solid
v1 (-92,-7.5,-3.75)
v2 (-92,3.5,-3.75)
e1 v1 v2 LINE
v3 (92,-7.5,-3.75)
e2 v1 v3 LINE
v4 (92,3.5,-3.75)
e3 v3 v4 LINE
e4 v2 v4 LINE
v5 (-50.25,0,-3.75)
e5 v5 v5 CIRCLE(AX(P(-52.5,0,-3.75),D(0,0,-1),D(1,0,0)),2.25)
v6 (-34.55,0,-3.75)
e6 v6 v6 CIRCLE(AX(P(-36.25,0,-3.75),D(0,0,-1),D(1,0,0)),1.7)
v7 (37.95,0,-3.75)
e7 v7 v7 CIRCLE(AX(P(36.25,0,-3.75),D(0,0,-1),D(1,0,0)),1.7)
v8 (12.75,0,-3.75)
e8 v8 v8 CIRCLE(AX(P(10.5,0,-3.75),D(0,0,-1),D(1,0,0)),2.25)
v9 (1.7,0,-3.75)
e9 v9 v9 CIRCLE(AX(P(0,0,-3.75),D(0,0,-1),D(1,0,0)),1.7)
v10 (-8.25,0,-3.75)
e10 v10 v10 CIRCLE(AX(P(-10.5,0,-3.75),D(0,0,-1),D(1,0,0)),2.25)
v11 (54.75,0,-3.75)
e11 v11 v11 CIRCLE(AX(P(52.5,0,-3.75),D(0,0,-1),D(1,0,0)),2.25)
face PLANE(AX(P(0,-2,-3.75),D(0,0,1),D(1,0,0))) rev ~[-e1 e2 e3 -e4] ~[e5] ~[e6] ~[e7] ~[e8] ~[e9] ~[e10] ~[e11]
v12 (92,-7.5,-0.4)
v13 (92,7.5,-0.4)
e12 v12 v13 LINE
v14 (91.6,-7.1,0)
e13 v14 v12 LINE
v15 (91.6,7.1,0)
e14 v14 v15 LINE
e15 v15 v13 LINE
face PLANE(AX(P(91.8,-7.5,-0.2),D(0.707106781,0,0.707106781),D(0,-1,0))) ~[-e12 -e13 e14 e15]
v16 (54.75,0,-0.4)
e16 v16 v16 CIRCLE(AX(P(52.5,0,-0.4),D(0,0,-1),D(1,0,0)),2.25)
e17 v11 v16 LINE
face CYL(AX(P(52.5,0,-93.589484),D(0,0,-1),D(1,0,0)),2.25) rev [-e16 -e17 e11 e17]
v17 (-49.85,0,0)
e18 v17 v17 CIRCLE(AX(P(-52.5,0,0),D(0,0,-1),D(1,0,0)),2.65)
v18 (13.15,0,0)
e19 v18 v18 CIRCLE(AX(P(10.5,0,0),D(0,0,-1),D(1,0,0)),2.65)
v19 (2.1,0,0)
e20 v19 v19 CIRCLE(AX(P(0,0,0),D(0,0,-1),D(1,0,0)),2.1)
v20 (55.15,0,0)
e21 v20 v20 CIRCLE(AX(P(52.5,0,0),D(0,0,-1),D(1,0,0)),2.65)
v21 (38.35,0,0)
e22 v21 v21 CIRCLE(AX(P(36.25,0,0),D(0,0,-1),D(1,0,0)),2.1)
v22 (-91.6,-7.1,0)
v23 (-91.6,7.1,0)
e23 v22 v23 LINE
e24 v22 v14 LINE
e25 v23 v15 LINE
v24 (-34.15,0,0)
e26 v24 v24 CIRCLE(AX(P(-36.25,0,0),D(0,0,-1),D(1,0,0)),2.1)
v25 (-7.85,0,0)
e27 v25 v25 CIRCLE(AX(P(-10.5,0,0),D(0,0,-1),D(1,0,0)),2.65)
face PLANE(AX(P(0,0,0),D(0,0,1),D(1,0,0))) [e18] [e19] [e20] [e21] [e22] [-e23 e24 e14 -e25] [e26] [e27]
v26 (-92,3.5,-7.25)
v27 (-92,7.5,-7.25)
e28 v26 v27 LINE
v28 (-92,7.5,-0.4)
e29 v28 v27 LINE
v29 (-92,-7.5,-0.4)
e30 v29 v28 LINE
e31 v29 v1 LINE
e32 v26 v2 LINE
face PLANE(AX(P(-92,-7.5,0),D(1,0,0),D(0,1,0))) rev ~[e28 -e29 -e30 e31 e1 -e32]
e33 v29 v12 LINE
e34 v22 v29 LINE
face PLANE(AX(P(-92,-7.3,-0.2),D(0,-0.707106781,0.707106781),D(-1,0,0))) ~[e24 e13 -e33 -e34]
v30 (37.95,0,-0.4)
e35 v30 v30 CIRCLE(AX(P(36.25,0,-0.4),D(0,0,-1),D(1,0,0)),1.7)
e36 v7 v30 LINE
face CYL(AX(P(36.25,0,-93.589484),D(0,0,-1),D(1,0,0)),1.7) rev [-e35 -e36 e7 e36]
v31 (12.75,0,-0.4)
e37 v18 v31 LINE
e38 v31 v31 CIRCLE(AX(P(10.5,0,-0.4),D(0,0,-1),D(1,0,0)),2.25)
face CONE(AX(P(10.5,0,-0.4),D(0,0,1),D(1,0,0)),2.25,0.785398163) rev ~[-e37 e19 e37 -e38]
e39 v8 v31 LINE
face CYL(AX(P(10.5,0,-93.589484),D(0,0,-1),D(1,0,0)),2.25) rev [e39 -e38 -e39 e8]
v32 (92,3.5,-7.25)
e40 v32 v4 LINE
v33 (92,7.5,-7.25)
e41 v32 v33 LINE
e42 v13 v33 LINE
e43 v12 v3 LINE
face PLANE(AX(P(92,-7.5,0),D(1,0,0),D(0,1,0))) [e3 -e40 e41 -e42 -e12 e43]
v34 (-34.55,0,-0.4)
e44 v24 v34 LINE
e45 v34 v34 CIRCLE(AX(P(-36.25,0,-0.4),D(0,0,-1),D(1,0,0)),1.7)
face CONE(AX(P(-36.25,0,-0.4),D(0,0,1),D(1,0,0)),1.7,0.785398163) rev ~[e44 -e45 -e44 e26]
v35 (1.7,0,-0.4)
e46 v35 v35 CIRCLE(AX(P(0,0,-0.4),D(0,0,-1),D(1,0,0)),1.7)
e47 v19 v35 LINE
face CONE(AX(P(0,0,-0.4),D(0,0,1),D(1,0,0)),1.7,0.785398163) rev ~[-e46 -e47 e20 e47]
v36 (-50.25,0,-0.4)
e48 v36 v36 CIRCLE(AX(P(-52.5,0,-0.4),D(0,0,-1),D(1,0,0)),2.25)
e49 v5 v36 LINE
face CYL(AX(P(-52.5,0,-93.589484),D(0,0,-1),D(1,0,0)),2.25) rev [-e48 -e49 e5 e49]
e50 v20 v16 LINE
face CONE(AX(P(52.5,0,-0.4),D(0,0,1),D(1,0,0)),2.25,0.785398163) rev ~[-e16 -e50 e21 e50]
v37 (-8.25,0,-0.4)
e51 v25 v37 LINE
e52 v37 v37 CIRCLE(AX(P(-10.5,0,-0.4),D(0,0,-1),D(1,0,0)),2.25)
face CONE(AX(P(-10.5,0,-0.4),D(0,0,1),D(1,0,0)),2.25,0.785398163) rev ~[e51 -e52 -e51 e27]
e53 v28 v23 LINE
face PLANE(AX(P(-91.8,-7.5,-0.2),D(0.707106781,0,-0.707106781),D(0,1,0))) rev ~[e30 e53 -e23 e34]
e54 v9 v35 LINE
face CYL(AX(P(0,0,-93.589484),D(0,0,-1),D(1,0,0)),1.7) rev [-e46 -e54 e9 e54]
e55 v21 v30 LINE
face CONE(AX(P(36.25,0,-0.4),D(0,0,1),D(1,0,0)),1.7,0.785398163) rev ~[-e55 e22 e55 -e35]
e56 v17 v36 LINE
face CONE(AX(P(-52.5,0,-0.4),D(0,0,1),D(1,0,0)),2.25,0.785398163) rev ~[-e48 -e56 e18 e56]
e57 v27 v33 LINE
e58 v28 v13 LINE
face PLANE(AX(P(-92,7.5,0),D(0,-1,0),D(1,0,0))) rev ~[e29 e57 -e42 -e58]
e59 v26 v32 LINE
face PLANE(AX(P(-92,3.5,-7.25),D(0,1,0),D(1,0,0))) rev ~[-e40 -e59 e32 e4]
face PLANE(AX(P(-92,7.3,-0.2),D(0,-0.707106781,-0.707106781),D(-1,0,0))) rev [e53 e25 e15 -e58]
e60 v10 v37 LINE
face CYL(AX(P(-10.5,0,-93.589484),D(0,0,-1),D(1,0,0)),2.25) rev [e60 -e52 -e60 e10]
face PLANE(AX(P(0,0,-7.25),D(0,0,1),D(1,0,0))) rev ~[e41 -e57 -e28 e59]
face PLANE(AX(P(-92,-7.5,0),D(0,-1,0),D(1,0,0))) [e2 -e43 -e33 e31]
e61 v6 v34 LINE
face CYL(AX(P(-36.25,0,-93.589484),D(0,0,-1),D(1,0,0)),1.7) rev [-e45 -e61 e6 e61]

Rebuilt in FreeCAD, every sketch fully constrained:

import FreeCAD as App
import Part
import Sketcher
from FreeCAD import Vector


def edges_at(feature, points):
    """Names of the edges that pass closest to the given points."""
    edges = feature.Shape.Edges
    near = lambda p: min(range(len(edges)), key=lambda i: edges[i].distToShape(Part.Vertex(*p))[0])
    return sorted({f"Edge{near(p) + 1}" for p in points})

doc = App.newDocument("Part")
body = doc.addObject("PartDesign::Body", "Body")

# Sketch on XY plane
sketch1 = body.newObject("Sketcher::SketchObject", "Sketch")
sketch1.AttachmentSupport = (doc.getObject("XY_Plane"), [""])
sketch1.MapMode = "FlatFace"
sketch1.addGeometry(Part.LineSegment(Vector(-92, 7.5, 0), Vector(-92, -7.5, 0)), False)
sketch1.addGeometry(Part.LineSegment(Vector(-92, -7.5, 0), Vector(92, -7.5, 0)), False)
sketch1.addGeometry(Part.LineSegment(Vector(92, -7.5, 0), Vector(92, 7.5, 0)), False)
sketch1.addGeometry(Part.LineSegment(Vector(92, 7.5, 0), Vector(-92, 7.5, 0)), False)
sketch1.addConstraint(Sketcher.Constraint("Coincident", 0, 2, 1, 1))
sketch1.addConstraint(Sketcher.Constraint("Coincident", 1, 2, 2, 1))
sketch1.addConstraint(Sketcher.Constraint("Coincident", 2, 2, 3, 1))
sketch1.addConstraint(Sketcher.Constraint("Coincident", 3, 2, 0, 1))
sketch1.addConstraint(Sketcher.Constraint("Vertical", 0))
sketch1.addConstraint(Sketcher.Constraint("Horizontal", 1))
sketch1.addConstraint(Sketcher.Constraint("Vertical", 2))
sketch1.addConstraint(Sketcher.Constraint("Horizontal", 3))
sketch1.addConstraint(Sketcher.Constraint("Symmetric", 0, 2, 2, 2, -1, 1))
sketch1.addConstraint(Sketcher.Constraint("DistanceX", 1, 1, 1, 2, 184.0))
sketch1.addConstraint(Sketcher.Constraint("DistanceY", 0, 2, 0, 1, 15.0))
pad1 = body.newObject("PartDesign::Pad", "Pad")
pad1.Profile = sketch1
pad1.Length = 7.25
pad1.Reversed = True

# Sketch on XY plane
sketch2 = body.newObject("Sketcher::SketchObject", "Sketch001")
sketch2.AttachmentSupport = (doc.getObject("XY_Plane"), [""])
sketch2.MapMode = "FlatFace"
sketch2.AttachmentOffset = App.Placement(Vector(0, 0, -7.25), App.Rotation())
sketch2.addGeometry(Part.LineSegment(Vector(-92, 3.5, 0), Vector(-92, -7.5, 0)), False)
sketch2.addGeometry(Part.LineSegment(Vector(-92, -7.5, 0), Vector(92, -7.5, 0)), False)
sketch2.addGeometry(Part.LineSegment(Vector(92, -7.5, 0), Vector(92, 3.5, 0)), False)
sketch2.addGeometry(Part.LineSegment(Vector(92, 3.5, 0), Vector(-92, 3.5, 0)), False)
sketch2.addConstraint(Sketcher.Constraint("Coincident", 0, 2, 1, 1))
sketch2.addConstraint(Sketcher.Constraint("Coincident", 1, 2, 2, 1))
sketch2.addConstraint(Sketcher.Constraint("Coincident", 2, 2, 3, 1))
sketch2.addConstraint(Sketcher.Constraint("Coincident", 3, 2, 0, 1))
sketch2.addConstraint(Sketcher.Constraint("Vertical", 0))
sketch2.addConstraint(Sketcher.Constraint("Horizontal", 1))
sketch2.addConstraint(Sketcher.Constraint("Vertical", 2))
sketch2.addConstraint(Sketcher.Constraint("Horizontal", 3))
sketch2.addConstraint(Sketcher.Constraint("DistanceX", 1, 1, 1, 2, 184.0))
sketch2.addConstraint(Sketcher.Constraint("DistanceY", 0, 2, 0, 1, 11.0))
sketch2.addConstraint(Sketcher.Constraint("DistanceX", 0, 2, -1, 1, 92.0))
sketch2.addConstraint(Sketcher.Constraint("DistanceY", 0, 2, -1, 1, 7.5))
pocket1 = body.newObject("PartDesign::Pocket", "Pocket")
pocket1.Profile = sketch2
pocket1.Length = 3.5
pocket1.Reversed = True

# Sketch on XY plane
sketch3 = body.newObject("Sketcher::SketchObject", "Sketch002")
sketch3.AttachmentSupport = (doc.getObject("XY_Plane"), [""])
sketch3.MapMode = "FlatFace"
sketch3.addGeometry(Part.Circle(Vector(-52.5, 0, 0), Vector(0, 0, 1), 2.25), False)
sketch3.addGeometry(Part.Circle(Vector(-36.25, 0, 0), Vector(0, 0, 1), 1.7), False)
sketch3.addGeometry(Part.Circle(Vector(-10.5, 0, 0), Vector(0, 0, 1), 2.25), False)
sketch3.addGeometry(Part.Circle(Vector(0, 0, 0), Vector(0, 0, 1), 1.7), False)
sketch3.addGeometry(Part.Circle(Vector(10.5, 0, 0), Vector(0, 0, 1), 2.25), False)
sketch3.addGeometry(Part.Circle(Vector(36.25, 0, 0), Vector(0, 0, 1), 1.7), False)
sketch3.addGeometry(Part.Circle(Vector(52.5, 0, 0), Vector(0, 0, 1), 2.25), False)
sketch3.addConstraint(Sketcher.Constraint("Coincident", 3, 3, -1, 1))
sketch3.addConstraint(Sketcher.Constraint("Equal", 0, 2))
sketch3.addConstraint(Sketcher.Constraint("Equal", 1, 3))
sketch3.addConstraint(Sketcher.Constraint("Equal", 2, 4))
sketch3.addConstraint(Sketcher.Constraint("Equal", 3, 5))
sketch3.addConstraint(Sketcher.Constraint("Equal", 4, 6))
sketch3.addConstraint(Sketcher.Constraint("Symmetric", 2, 3, 4, 3, -1, 1))
sketch3.addConstraint(Sketcher.Constraint("Symmetric", 1, 3, 5, 3, -1, 1))
sketch3.addConstraint(Sketcher.Constraint("Symmetric", 0, 3, 6, 3, -1, 1))
sketch3.addConstraint(Sketcher.Constraint("PointOnObject", 0, 3, -1))
sketch3.addConstraint(Sketcher.Constraint("PointOnObject", 1, 3, -1))
sketch3.addConstraint(Sketcher.Constraint("PointOnObject", 2, 3, -1))
sketch3.addConstraint(Sketcher.Constraint("Diameter", 0, 4.5))
sketch3.addConstraint(Sketcher.Constraint("Diameter", 1, 3.4))
sketch3.addConstraint(Sketcher.Constraint("DistanceX", 0, 3, 2, 3, 42.0))
sketch3.addConstraint(Sketcher.Constraint("DistanceX", 2, 3, 4, 3, 21.0))
sketch3.addConstraint(Sketcher.Constraint("DistanceX", 1, 3, 5, 3, 72.5))
pocket2 = body.newObject("PartDesign::Pocket", "Pocket001")
pocket2.Profile = sketch3
pocket2.Type = "ThroughAll"
pocket2.Midplane = True
doc.recompute()

chamfer = body.newObject("PartDesign::Chamfer", "Chamfer")
chamfer.Base = (pocket2, edges_at(pocket2, [
    (-54.75, 0, 0),
    (-37.95, 0, 0),
    (-12.75, 0, 0),
    (-1.7, 0, 0),
    (8.25, 0, 0),
    (34.55, 0, 0),
    (50.25, 0, 0),
    (0, -7.5, 0),
    (-92, 0, 0),
    (0, 7.5, 0),
    (92, 0, 0),
]))
chamfer.Size = 0.4

doc.recompute()
